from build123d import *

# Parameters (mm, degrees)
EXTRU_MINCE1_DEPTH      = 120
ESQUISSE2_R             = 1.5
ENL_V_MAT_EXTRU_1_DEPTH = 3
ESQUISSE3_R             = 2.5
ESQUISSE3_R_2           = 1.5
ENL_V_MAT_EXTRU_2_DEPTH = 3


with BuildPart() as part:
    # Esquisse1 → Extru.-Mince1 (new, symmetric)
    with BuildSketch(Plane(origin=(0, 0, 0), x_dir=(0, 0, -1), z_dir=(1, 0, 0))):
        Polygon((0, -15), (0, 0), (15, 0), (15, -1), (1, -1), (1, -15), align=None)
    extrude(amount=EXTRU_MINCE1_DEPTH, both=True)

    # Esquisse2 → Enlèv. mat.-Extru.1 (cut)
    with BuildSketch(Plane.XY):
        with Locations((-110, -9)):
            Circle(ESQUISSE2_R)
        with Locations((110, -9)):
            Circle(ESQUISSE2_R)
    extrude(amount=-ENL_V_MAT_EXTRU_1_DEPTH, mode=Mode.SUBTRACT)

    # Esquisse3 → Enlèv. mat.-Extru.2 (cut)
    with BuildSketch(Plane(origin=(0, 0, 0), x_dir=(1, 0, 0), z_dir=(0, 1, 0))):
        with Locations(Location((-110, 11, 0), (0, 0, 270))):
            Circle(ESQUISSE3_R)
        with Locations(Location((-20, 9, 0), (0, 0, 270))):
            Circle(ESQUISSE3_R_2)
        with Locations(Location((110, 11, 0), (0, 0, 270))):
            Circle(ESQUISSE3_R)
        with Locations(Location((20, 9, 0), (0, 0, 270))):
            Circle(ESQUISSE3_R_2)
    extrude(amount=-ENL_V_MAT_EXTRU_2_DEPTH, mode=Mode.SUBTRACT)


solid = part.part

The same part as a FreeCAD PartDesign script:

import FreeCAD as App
import Part
import Sketcher
from FreeCAD import Vector
Q = App.Units.Quantity


def add_polygon(sketch, points):
    """Adds a closed chain of lines whose ends are joined by coincident constraints."""
    first, n = sketch.GeometryCount, len(points)
    for a, b in zip(points, points[1:] + points[:1]):
        sketch.addGeometry(Part.LineSegment(App.Vector(*a, 0), App.Vector(*b, 0)), False)
    for i in range(n):
        sketch.addConstraint(Sketcher.Constraint("Coincident", first + i, 2, first + (i + 1) % n, 1))

doc = App.newDocument("Part")
params = doc.addObject("Spreadsheet::Sheet", "Params")
for row, (alias, value) in enumerate([
    ("sketch1_width", "15 mm"),
    ("sketch1_width2", "14 mm"),
    ("pad1_length", "240 mm"),
    ("sketch2_diameter", "3 mm"),
    ("pocket1_length", "3 mm"),
    ("sketch3_diameter", "5 mm"),
    ("sketch3_diameter2", "3 mm"),
    ("pocket2_length", "3 mm"),
], start=1):
    params.set(f"A{row}", alias)
    params.set(f"B{row}", "=" + value)
    params.setAlias(f"B{row}", alias)

body = doc.addObject("PartDesign::Body", "Body")

sketch1 = doc.addObject("Sketcher::SketchObject", "Sketch")
body.addObject(sketch1)
sketch1.AttachmentSupport = (doc.YZ_Plane, [""])
sketch1.MapMode = "FlatFace"
add_polygon(sketch1, [(0, 0), (-15, 0), (-15, -1), (-1, -1), (-1, -15), (0, -15)])
sketch1.addConstraint([
    Sketcher.Constraint("Horizontal", 0),
    Sketcher.Constraint("Vertical", 1),
    Sketcher.Constraint("Horizontal", 2),
    Sketcher.Constraint("Vertical", 3),
    Sketcher.Constraint("Horizontal", 4),
    Sketcher.Constraint("Vertical", 5),
    Sketcher.Constraint("Coincident", 5, 2, -1, 1),
    Sketcher.Constraint("Equal", 4, 1),
    Sketcher.Constraint("Equal", 2, 3),
    Sketcher.Constraint("DistanceX", 0, 2, 0, 1, Q("15 mm")),
    Sketcher.Constraint("DistanceX", 2, 1, 2, 2, Q("14 mm")),
])
sketch1.setExpression("Constraints[15]", "Params.sketch1_width")
sketch1.setExpression("Constraints[16]", "Params.sketch1_width2")
pad1 = doc.addObject("PartDesign::Pad", "Pad")
body.addObject(pad1)
pad1.Profile = sketch1
pad1.setExpression("Length", "Params.pad1_length")
pad1.Midplane = True

sketch2 = doc.addObject("Sketcher::SketchObject", "Sketch001")
body.addObject(sketch2)
sketch2.AttachmentSupport = (doc.XY_Plane, [""])
sketch2.MapMode = "FlatFace"
sketch2.addGeometry([
    Part.Circle(Vector(-110, -9, 0), Vector(0, 0, 1), 1.5),
    Part.Circle(Vector(110, -9, 0), Vector(0, 0, 1), 1.5),
], False)
sketch2.addConstraint([
    Sketcher.Constraint("Equal", 0, 1),
    Sketcher.Constraint("Symmetric", 0, 3, 1, 3, -2),
    Sketcher.Constraint("Diameter", 0, Q("3 mm")),
    Sketcher.Constraint("DistanceX", 0, 3, -1, 1, Q("110 mm")),
    Sketcher.Constraint("DistanceY", 0, 3, -1, 1, Q("9 mm")),
])
sketch2.setExpression("Constraints[2]", "Params.sketch2_diameter")
pocket1 = doc.addObject("PartDesign::Pocket", "Pocket")
body.addObject(pocket1)
pocket1.Profile = sketch2
pocket1.setExpression("Length", "Params.pocket1_length")

sketch3 = doc.addObject("Sketcher::SketchObject", "Sketch002")
body.addObject(sketch3)
sketch3.AttachmentSupport = (doc.XZ_Plane, [""])
sketch3.MapMode = "FlatFace"
sketch3.addGeometry([
    Part.Circle(Vector(-110, -11, 0), Vector(0, 0, 1), 2.5),
    Part.Circle(Vector(-20, -9, 0), Vector(0, 0, 1), 1.5),
    Part.Circle(Vector(110, -11, 0), Vector(0, 0, 1), 2.5),
    Part.Circle(Vector(20, -9, 0), Vector(0, 0, 1), 1.5),
], False)
sketch3.addConstraint([
    Sketcher.Constraint("Equal", 0, 2),
    Sketcher.Constraint("Equal", 1, 3),
    Sketcher.Constraint("Symmetric", 0, 3, 2, 3, -2),
    Sketcher.Constraint("Symmetric", 1, 3, 3, 3, -2),
    Sketcher.Constraint("Diameter", 0, Q("5 mm")),
    Sketcher.Constraint("Diameter", 1, Q("3 mm")),
    Sketcher.Constraint("DistanceX", 0, 3, -1, 1, Q("110 mm")),
    Sketcher.Constraint("DistanceY", 0, 3, -1, 1, Q("11 mm")),
    Sketcher.Constraint("DistanceX", 1, 3, -1, 1, Q("20 mm")),
    Sketcher.Constraint("DistanceY", 1, 3, -1, 1, Q("9 mm")),
])
sketch3.setExpression("Constraints[4]", "Params.sketch3_diameter")
sketch3.setExpression("Constraints[5]", "Params.sketch3_diameter2")
pocket2 = doc.addObject("PartDesign::Pocket", "Pocket001")
body.addObject(pocket2)
pocket2.Profile = sketch3
pocket2.setExpression("Length", "Params.pocket2_length")
pocket2.Reversed = True

doc.recompute()
